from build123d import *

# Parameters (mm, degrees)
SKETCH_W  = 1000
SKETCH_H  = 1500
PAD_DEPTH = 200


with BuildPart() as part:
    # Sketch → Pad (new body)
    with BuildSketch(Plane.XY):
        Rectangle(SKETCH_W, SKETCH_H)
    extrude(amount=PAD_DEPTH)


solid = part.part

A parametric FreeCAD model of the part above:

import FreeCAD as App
import Part
import Sketcher

V = App.Vector
Q = App.Units.Quantity


def add_polygon(sketch, points):
    """Adds a closed chain of lines whose ends are joined by coincident constraints."""
    first, n = sketch.GeometryCount, len(points)
    for a, b in zip(points, points[1:] + points[:1]):
        sketch.addGeometry(Part.LineSegment(App.Vector(*a, 0), App.Vector(*b, 0)), False)
    for i in range(n):
        sketch.addConstraint(Sketcher.Constraint("Coincident", first + i, 2, first + (i + 1) % n, 1))

doc = App.newDocument("Part")
params = doc.addObject("Spreadsheet::Sheet", "Params")
for row, (alias, value) in enumerate([
    ("sketch1_width", "1000 mm"),
    ("sketch1_height", "1500 mm"),
    ("pad1_length", "200 mm"),
], start=1):
    params.set(f"A{row}", alias)
    params.set(f"B{row}", "=" + value)
    params.setAlias(f"B{row}", alias)

body = doc.addObject("PartDesign::Body", "Body")

# Sketch on XY plane
sketch1 = body.newObject("Sketcher::SketchObject", "Sketch")
sketch1.AttachmentSupport = (doc.getObject("XY_Plane"), [""])
sketch1.MapMode = "FlatFace"
add_polygon(sketch1, [(-500, 750), (-500, -750), (500, -750), (500, 750)])  # lines 0-3
sketch1.addConstraint([
    Sketcher.Constraint("Vertical", 0),
    Sketcher.Constraint("Horizontal", 1),
    Sketcher.Constraint("Vertical", 2),
    Sketcher.Constraint("Horizontal", 3),
    Sketcher.Constraint("Symmetric", 0, 2, 2, 2, -1, 1),
    Sketcher.Constraint("DistanceX", 1, 1, 1, 2, Q("1000 mm")),
    Sketcher.Constraint("DistanceY", 0, 2, 0, 1, Q("1500 mm")),
])
sketch1.setExpression("Constraints[9]", "Params.sketch1_width")
sketch1.setExpression("Constraints[10]", "Params.sketch1_height")
pad1 = body.newObject("PartDesign::Pad", "Pad")
pad1.Profile = sketch1
pad1.setExpression("Length", "Params.pad1_length")

doc.recompute()
